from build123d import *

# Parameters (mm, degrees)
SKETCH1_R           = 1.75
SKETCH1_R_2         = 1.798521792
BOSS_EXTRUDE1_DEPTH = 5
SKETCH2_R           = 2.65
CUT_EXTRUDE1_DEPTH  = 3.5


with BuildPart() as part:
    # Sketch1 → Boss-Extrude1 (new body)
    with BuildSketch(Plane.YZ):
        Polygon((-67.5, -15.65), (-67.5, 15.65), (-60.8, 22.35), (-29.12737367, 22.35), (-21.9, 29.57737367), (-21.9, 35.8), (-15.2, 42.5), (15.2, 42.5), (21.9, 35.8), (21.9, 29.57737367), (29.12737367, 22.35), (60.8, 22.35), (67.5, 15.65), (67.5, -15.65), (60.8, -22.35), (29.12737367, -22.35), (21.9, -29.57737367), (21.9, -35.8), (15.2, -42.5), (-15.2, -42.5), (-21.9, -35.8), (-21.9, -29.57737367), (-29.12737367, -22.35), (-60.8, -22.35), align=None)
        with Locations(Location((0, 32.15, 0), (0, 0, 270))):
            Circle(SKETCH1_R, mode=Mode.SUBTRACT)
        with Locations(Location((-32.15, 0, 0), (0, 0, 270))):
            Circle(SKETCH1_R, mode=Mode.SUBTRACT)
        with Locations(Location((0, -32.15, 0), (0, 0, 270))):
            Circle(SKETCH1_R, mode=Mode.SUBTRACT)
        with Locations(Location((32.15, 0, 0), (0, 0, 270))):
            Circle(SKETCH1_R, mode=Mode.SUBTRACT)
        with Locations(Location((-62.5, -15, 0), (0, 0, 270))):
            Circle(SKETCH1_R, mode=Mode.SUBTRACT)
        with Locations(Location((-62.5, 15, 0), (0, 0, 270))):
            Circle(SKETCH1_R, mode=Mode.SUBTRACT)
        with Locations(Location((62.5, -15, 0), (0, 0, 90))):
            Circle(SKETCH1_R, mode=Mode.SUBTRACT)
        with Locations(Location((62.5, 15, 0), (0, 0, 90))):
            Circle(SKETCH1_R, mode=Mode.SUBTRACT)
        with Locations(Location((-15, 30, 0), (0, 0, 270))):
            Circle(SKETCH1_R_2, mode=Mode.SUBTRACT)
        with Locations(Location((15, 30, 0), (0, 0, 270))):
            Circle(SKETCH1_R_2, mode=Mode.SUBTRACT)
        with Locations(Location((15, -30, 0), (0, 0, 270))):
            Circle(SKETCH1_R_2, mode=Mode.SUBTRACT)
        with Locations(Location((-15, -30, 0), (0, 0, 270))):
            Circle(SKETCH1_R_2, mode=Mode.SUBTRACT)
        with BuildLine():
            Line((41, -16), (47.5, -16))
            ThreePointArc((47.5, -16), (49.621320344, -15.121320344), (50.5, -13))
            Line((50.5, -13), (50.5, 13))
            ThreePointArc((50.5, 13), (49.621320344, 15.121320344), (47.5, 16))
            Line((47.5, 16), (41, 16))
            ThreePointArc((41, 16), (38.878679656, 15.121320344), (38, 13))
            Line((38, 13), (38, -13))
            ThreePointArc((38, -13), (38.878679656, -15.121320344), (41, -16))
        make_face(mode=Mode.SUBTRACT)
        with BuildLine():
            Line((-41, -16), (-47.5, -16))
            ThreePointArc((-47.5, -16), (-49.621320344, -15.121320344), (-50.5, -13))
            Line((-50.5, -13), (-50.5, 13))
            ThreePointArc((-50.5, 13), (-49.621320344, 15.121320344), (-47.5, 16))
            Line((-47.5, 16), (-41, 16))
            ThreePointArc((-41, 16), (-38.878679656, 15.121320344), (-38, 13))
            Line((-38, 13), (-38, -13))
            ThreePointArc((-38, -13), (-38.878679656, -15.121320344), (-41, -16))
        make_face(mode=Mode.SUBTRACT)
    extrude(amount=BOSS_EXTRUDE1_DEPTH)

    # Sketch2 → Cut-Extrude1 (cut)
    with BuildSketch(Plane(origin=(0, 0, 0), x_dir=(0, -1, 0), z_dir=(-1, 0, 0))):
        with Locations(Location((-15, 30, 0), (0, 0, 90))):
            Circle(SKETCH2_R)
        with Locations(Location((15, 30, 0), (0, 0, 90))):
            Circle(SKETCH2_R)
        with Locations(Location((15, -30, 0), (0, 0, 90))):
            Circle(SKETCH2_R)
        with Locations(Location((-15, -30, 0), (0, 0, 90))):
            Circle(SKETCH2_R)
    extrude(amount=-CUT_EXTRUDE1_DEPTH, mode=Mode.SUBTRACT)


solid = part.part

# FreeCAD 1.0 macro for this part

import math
import FreeCAD as App
import Part
import Sketcher

V = App.Vector


def add_polygon(sketch, points):
    """Adds a closed chain of lines whose ends are joined by coincident constraints."""
    first, n = sketch.GeometryCount, len(points)
    for a, b in zip(points, points[1:] + points[:1]):
        sketch.addGeometry(Part.LineSegment(App.Vector(*a, 0), App.Vector(*b, 0)), False)
    for i in range(n):
        sketch.addConstraint(Sketcher.Constraint("Coincident", first + i, 2, first + (i + 1) % n, 1))

doc = App.newDocument("Part")
body = doc.addObject("PartDesign::Body", "Body")

sketch1 = body.newObject("Sketcher::SketchObject", "Sketch")
sketch1.AttachmentSupport = (doc.getObject("YZ_Plane"), [""])
sketch1.MapMode = "FlatFace"
add_polygon(sketch1, [(-67.5, 15.65), (-67.5, -15.65), (-60.8, -22.35), (-29.127374, -22.35), (-21.9, -29.577374), (-21.9, -35.8), (-15.2, -42.5), (15.2, -42.5), (21.9, -35.8), (21.9, -29.577374), (29.127374, -22.35), (60.8, -22.35), (67.5, -15.65), (67.5, 15.65), (60.8, 22.35), (29.127374, 22.35), (21.9, 29.577374), (21.9, 35.8), (15.2, 42.5), (-15.2, 42.5), (-21.9, 35.8), (-21.9, 29.577374), (-29.127374, 22.35), (-60.8, 22.35)])
sketch1.addGeometry(Part.Circle(V(15, -30, 0), V(0, 0, 1), 1.798522), False)
sketch1.addGeometry(Part.Circle(V(62.5, -15, 0), V(0, 0, 1), 1.75), False)
sketch1.addGeometry(Part.ArcOfCircle(Part.Circle(V(41, -13, 0), V(0, 0, 1), 3), math.radians(180), math.radians(270)), False)
sketch1.addGeometry(Part.LineSegment(V(38, -13, 0), V(38, 13, 0)), False)
sketch1.addGeometry(Part.ArcOfCircle(Part.Circle(V(41, 13, 0), V(0, 0, 1), 3), math.radians(90), math.radians(180)), False)
sketch1.addGeometry(Part.LineSegment(V(41, 16, 0), V(47.5, 16, 0)), False)
sketch1.addGeometry(Part.ArcOfCircle(Part.Circle(V(47.5, 13, 0), V(0, 0, 1), 3), math.radians(0), math.radians(90)), False)
sketch1.addGeometry(Part.LineSegment(V(50.5, 13, 0), V(50.5, -13, 0)), False)
sketch1.addGeometry(Part.ArcOfCircle(Part.Circle(V(47.5, -13, 0), V(0, 0, 1), 3), math.radians(-90), math.radians(0)), False)
sketch1.addGeometry(Part.LineSegment(V(47.5, -16, 0), V(41, -16, 0)), False)
sketch1.addGeometry(Part.Circle(V(32.15, 0, 0), V(0, 0, 1), 1.75), False)
sketch1.addGeometry(Part.Circle(V(0, -32.15, 0), V(0, 0, 1), 1.75), False)
sketch1.addGeometry(Part.Circle(V(-15, -30, 0), V(0, 0, 1), 1.798522), False)
sketch1.addGeometry(Part.Circle(V(-62.5, -15, 0), V(0, 0, 1), 1.75), False)
sketch1.addGeometry(Part.Circle(V(-32.15, 0, 0), V(0, 0, 1), 1.75), False)
sketch1.addGeometry(Part.LineSegment(V(-41, -16, 0), V(-47.5, -16, 0)), False)
sketch1.addGeometry(Part.ArcOfCircle(Part.Circle(V(-47.5, -13, 0), V(0, 0, 1), 3), math.radians(180), math.radians(270)), False)
sketch1.addGeometry(Part.LineSegment(V(-50.5, -13, 0), V(-50.5, 13, 0)), False)
sketch1.addGeometry(Part.ArcOfCircle(Part.Circle(V(-47.5, 13, 0), V(0, 0, 1), 3), math.radians(90), math.radians(180)), False)
sketch1.addGeometry(Part.LineSegment(V(-47.5, 16, 0), V(-41, 16, 0)), False)
sketch1.addGeometry(Part.ArcOfCircle(Part.Circle(V(-41, 13, 0), V(0, 0, 1), 3), math.radians(0), math.radians(90)), False)
sketch1.addGeometry(Part.LineSegment(V(-38, 13, 0), V(-38, -13, 0)), False)
sketch1.addGeometry(Part.ArcOfCircle(Part.Circle(V(-41, -13, 0), V(0, 0, 1), 3), math.radians(-90), math.radians(0)), False)
sketch1.addGeometry(Part.Circle(V(62.5, 15, 0), V(0, 0, 1), 1.75), False)
sketch1.addGeometry(Part.Circle(V(15, 30, 0), V(0, 0, 1), 1.798522), False)
sketch1.addGeometry(Part.Circle(V(-62.5, 15, 0), V(0, 0, 1), 1.75), False)
sketch1.addGeometry(Part.Circle(V(0, 32.15, 0), V(0, 0, 1), 1.75), False)
sketch1.addGeometry(Part.Circle(V(-15, 30, 0), V(0, 0, 1), 1.798522), False)
sketch1.addConstraint([
    Sketcher.Constraint("Tangent", 26, 1, 27, 1),
    Sketcher.Constraint("Tangent", 27, 2, 28, 2),
    Sketcher.Constraint("Tangent", 28, 1, 29, 1),
    Sketcher.Constraint("Tangent", 29, 2, 30, 2),
    Sketcher.Constraint("Tangent", 30, 1, 31, 1),
    Sketcher.Constraint("Tangent", 31, 2, 32, 2),
    Sketcher.Constraint("Tangent", 32, 1, 33, 1),
    Sketcher.Constraint("Tangent", 33, 2, 26, 2),
    Sketcher.Constraint("Tangent", 39, 2, 40, 2),
    Sketcher.Constraint("Tangent", 40, 1, 41, 1),
    Sketcher.Constraint("Tangent", 41, 2, 42, 2),
    Sketcher.Constraint("Tangent", 42, 1, 43, 1),
    Sketcher.Constraint("Tangent", 43, 2, 44, 2),
    Sketcher.Constraint("Tangent", 44, 1, 45, 1),
    Sketcher.Constraint("Tangent", 45, 2, 46, 2),
    Sketcher.Constraint("Tangent", 46, 1, 39, 1),
    Sketcher.Constraint("Vertical", 0),
    Sketcher.Constraint("Horizontal", 2),
    Sketcher.Constraint("Vertical", 4),
    Sketcher.Constraint("Horizontal", 6),
    Sketcher.Constraint("Vertical", 8),
    Sketcher.Constraint("Horizontal", 10),
    Sketcher.Constraint("Vertical", 12),
    Sketcher.Constraint("Horizontal", 14),
    Sketcher.Constraint("Vertical", 16),
    Sketcher.Constraint("Horizontal", 18),
    Sketcher.Constraint("Vertical", 20),
    Sketcher.Constraint("Horizontal", 22),
    Sketcher.Constraint("Vertical", 27),
    Sketcher.Constraint("Horizontal", 29),
    Sketcher.Constraint("Vertical", 31),
    Sketcher.Constraint("Horizontal", 33),
    Sketcher.Constraint("Horizontal", 39),
    Sketcher.Constraint("Vertical", 41),
    Sketcher.Constraint("Horizontal", 43),
    Sketcher.Constraint("Vertical", 45),
    Sketcher.Constraint("Equal", 26, 28),
    Sketcher.Constraint("Equal", 28, 30),
    Sketcher.Constraint("Equal", 30, 32),
    Sketcher.Constraint("Equal", 25, 34),
    Sketcher.Constraint("Equal", 34, 35),
    Sketcher.Constraint("Equal", 24, 36),
    Sketcher.Constraint("Equal", 35, 37),
    Sketcher.Constraint("Equal", 37, 38),
    Sketcher.Constraint("Equal", 32, 40),
    Sketcher.Constraint("Equal", 40, 42),
    Sketcher.Constraint("Equal", 42, 44),
    Sketcher.Constraint("Equal", 44, 46),
    Sketcher.Constraint("Equal", 38, 47),
    Sketcher.Constraint("Equal", 36, 48),
    Sketcher.Constraint("Equal", 47, 49),
    Sketcher.Constraint("Equal", 49, 50),
    Sketcher.Constraint("Equal", 48, 51),
    Sketcher.Constraint("Symmetric", 34, 3, 38, 3, -1, 1),
    Sketcher.Constraint("Symmetric", 30, 3, 40, 3, -1, 1),
    Sketcher.Constraint("Symmetric", 26, 3, 44, 3, -1, 1),
    Sketcher.Constraint("Symmetric", 37, 3, 47, 3, -1, 1),
    Sketcher.Constraint("Symmetric", 36, 3, 48, 3, -1, 1),
    Sketcher.Constraint("Symmetric", 25, 3, 49, 3, -1, 1),
    Sketcher.Constraint("Symmetric", 35, 3, 50, 3, -1, 1),
    Sketcher.Constraint("Symmetric", 24, 3, 51, 3, -1, 1),
    Sketcher.Constraint("Symmetric", 0, 2, 12, 2, -1, 1),
    Sketcher.Constraint("Symmetric", 1, 2, 13, 2, -1, 1),
    Sketcher.Constraint("Symmetric", 3, 2, 15, 2, -1, 1),
    Sketcher.Constraint("Symmetric", 5, 2, 17, 2, -1, 1),
    Sketcher.Constraint("Symmetric", 7, 2, 19, 2, -1, 1),
    Sketcher.Constraint("Symmetric", 9, 2, 21, 2, -1, 1),
    Sketcher.Constraint("Symmetric", 24, 3, 36, 3, -2),
    Sketcher.Constraint("Symmetric", 25, 3, 37, 3, -2),
    Sketcher.Constraint("Symmetric", 4, 2, 7, 2, -2),
    Sketcher.Constraint("Symmetric", 2, 2, 9, 2, -2),
    Sketcher.Constraint("PointOnObject", 34, 3, -1),
    Sketcher.Constraint("PointOnObject", 35, 3, -2),
    Sketcher.Constraint("Parallel", 1, 3),
    Sketcher.Constraint("Parallel", 3, 5),
    Sketcher.Constraint("Perpendicular", 5, 7),
    Sketcher.Constraint("Parallel", 7, 9),
    Sketcher.Constraint("Parallel", 9, 11),
    Sketcher.Constraint("Parallel", 13, 15),
    Sketcher.Constraint("Parallel", 15, 17),
    Sketcher.Constraint("Perpendicular", 17, 19),
    Sketcher.Constraint("Parallel", 19, 21),
    Sketcher.Constraint("Parallel", 21, 23),
    Sketcher.Constraint("Horizontal", 32, 3, 40, 3),
    Sketcher.Constraint("Horizontal", 3, 2, 8, 2),
    Sketcher.Constraint("Horizontal", 0, 2, 11, 2),
    Sketcher.Constraint("Horizontal", 12, 2, 23, 2),
    Sketcher.Constraint("Equal", 1, 5),
    Sketcher.Constraint("Radius", 26, 3.0),
    Sketcher.Constraint("Diameter", 25, 3.5),
    Sketcher.Constraint("DistanceY", 27, 1, 27, 2, 26.0),
    Sketcher.Constraint("DistanceX", 6, 1, 6, 2, 30.4),
    Sketcher.Constraint("DistanceX", 29, 1, 29, 2, 6.5),
    Sketcher.Constraint("DistanceY", 0, 2, 0, 1, 31.3),
    Sketcher.Constraint("DistanceX", -1, 1, 24, 3, 15.0),
    Sketcher.Constraint("DistanceY", 24, 3, -1, 1, 30.0),
    Sketcher.Constraint("DistanceY", 25, 3, -1, 1, 15.0),
    Sketcher.Constraint("DistanceX", -1, 1, 26, 3, 41.0),
    Sketcher.Constraint("DistanceX", 30, 3, 25, 3, 15.0),
    Sketcher.Constraint("DistanceX", 0, 2, 37, 3, 5.0),
    Sketcher.Constraint("DistanceX", 1, 2, -1, 1, 60.8),
    Sketcher.Constraint("DistanceY", 4, 2, -1, 1, 35.8),
    Sketcher.Constraint("DistanceX", 38, 3, 34, 3, 64.3),
    Sketcher.Constraint("DistanceY", 35, 3, 2, 2, 9.8),
    Sketcher.Constraint("Diameter", 24, 3.597044),
    Sketcher.Constraint("Distance", 3, 10.22105),
])
pad1 = body.newObject("PartDesign::Pad", "Pad")
pad1.Profile = sketch1
pad1.Length = 5

sketch2 = body.newObject("Sketcher::SketchObject", "Sketch001")
sketch2.AttachmentSupport = (doc.getObject("YZ_Plane"), [""])
sketch2.MapMode = "FlatFace"
sketch2.addGeometry([
    Part.Circle(V(15, 30, 0), V(0, 0, 1), 2.65),
    Part.Circle(V(-15, 30, 0), V(0, 0, 1), 2.65),
    Part.Circle(V(-15, -30, 0), V(0, 0, 1), 2.65),
    Part.Circle(V(15, -30, 0), V(0, 0, 1), 2.65),
], False)
sketch2.addConstraint([
    Sketcher.Constraint("Equal", 0, 1),
    Sketcher.Constraint("Equal", 1, 2),
    Sketcher.Constraint("Equal", 2, 3),
    Sketcher.Constraint("Symmetric", 0, 3, 2, 3, -1, 1),
    Sketcher.Constraint("Symmetric", 1, 3, 3, 3, -1, 1),
    Sketcher.Constraint("Symmetric", 0, 3, 1, 3, -2),
    Sketcher.Constraint("Diameter", 0, 5.3),
    Sketcher.Constraint("DistanceX", -1, 1, 0, 3, 15.0),
    Sketcher.Constraint("DistanceY", -1, 1, 0, 3, 30.0),
])
pocket1 = body.newObject("PartDesign::Pocket", "Pocket")
pocket1.Profile = sketch2
pocket1.Length = 3.5
pocket1.Reversed = True

doc.recompute()
